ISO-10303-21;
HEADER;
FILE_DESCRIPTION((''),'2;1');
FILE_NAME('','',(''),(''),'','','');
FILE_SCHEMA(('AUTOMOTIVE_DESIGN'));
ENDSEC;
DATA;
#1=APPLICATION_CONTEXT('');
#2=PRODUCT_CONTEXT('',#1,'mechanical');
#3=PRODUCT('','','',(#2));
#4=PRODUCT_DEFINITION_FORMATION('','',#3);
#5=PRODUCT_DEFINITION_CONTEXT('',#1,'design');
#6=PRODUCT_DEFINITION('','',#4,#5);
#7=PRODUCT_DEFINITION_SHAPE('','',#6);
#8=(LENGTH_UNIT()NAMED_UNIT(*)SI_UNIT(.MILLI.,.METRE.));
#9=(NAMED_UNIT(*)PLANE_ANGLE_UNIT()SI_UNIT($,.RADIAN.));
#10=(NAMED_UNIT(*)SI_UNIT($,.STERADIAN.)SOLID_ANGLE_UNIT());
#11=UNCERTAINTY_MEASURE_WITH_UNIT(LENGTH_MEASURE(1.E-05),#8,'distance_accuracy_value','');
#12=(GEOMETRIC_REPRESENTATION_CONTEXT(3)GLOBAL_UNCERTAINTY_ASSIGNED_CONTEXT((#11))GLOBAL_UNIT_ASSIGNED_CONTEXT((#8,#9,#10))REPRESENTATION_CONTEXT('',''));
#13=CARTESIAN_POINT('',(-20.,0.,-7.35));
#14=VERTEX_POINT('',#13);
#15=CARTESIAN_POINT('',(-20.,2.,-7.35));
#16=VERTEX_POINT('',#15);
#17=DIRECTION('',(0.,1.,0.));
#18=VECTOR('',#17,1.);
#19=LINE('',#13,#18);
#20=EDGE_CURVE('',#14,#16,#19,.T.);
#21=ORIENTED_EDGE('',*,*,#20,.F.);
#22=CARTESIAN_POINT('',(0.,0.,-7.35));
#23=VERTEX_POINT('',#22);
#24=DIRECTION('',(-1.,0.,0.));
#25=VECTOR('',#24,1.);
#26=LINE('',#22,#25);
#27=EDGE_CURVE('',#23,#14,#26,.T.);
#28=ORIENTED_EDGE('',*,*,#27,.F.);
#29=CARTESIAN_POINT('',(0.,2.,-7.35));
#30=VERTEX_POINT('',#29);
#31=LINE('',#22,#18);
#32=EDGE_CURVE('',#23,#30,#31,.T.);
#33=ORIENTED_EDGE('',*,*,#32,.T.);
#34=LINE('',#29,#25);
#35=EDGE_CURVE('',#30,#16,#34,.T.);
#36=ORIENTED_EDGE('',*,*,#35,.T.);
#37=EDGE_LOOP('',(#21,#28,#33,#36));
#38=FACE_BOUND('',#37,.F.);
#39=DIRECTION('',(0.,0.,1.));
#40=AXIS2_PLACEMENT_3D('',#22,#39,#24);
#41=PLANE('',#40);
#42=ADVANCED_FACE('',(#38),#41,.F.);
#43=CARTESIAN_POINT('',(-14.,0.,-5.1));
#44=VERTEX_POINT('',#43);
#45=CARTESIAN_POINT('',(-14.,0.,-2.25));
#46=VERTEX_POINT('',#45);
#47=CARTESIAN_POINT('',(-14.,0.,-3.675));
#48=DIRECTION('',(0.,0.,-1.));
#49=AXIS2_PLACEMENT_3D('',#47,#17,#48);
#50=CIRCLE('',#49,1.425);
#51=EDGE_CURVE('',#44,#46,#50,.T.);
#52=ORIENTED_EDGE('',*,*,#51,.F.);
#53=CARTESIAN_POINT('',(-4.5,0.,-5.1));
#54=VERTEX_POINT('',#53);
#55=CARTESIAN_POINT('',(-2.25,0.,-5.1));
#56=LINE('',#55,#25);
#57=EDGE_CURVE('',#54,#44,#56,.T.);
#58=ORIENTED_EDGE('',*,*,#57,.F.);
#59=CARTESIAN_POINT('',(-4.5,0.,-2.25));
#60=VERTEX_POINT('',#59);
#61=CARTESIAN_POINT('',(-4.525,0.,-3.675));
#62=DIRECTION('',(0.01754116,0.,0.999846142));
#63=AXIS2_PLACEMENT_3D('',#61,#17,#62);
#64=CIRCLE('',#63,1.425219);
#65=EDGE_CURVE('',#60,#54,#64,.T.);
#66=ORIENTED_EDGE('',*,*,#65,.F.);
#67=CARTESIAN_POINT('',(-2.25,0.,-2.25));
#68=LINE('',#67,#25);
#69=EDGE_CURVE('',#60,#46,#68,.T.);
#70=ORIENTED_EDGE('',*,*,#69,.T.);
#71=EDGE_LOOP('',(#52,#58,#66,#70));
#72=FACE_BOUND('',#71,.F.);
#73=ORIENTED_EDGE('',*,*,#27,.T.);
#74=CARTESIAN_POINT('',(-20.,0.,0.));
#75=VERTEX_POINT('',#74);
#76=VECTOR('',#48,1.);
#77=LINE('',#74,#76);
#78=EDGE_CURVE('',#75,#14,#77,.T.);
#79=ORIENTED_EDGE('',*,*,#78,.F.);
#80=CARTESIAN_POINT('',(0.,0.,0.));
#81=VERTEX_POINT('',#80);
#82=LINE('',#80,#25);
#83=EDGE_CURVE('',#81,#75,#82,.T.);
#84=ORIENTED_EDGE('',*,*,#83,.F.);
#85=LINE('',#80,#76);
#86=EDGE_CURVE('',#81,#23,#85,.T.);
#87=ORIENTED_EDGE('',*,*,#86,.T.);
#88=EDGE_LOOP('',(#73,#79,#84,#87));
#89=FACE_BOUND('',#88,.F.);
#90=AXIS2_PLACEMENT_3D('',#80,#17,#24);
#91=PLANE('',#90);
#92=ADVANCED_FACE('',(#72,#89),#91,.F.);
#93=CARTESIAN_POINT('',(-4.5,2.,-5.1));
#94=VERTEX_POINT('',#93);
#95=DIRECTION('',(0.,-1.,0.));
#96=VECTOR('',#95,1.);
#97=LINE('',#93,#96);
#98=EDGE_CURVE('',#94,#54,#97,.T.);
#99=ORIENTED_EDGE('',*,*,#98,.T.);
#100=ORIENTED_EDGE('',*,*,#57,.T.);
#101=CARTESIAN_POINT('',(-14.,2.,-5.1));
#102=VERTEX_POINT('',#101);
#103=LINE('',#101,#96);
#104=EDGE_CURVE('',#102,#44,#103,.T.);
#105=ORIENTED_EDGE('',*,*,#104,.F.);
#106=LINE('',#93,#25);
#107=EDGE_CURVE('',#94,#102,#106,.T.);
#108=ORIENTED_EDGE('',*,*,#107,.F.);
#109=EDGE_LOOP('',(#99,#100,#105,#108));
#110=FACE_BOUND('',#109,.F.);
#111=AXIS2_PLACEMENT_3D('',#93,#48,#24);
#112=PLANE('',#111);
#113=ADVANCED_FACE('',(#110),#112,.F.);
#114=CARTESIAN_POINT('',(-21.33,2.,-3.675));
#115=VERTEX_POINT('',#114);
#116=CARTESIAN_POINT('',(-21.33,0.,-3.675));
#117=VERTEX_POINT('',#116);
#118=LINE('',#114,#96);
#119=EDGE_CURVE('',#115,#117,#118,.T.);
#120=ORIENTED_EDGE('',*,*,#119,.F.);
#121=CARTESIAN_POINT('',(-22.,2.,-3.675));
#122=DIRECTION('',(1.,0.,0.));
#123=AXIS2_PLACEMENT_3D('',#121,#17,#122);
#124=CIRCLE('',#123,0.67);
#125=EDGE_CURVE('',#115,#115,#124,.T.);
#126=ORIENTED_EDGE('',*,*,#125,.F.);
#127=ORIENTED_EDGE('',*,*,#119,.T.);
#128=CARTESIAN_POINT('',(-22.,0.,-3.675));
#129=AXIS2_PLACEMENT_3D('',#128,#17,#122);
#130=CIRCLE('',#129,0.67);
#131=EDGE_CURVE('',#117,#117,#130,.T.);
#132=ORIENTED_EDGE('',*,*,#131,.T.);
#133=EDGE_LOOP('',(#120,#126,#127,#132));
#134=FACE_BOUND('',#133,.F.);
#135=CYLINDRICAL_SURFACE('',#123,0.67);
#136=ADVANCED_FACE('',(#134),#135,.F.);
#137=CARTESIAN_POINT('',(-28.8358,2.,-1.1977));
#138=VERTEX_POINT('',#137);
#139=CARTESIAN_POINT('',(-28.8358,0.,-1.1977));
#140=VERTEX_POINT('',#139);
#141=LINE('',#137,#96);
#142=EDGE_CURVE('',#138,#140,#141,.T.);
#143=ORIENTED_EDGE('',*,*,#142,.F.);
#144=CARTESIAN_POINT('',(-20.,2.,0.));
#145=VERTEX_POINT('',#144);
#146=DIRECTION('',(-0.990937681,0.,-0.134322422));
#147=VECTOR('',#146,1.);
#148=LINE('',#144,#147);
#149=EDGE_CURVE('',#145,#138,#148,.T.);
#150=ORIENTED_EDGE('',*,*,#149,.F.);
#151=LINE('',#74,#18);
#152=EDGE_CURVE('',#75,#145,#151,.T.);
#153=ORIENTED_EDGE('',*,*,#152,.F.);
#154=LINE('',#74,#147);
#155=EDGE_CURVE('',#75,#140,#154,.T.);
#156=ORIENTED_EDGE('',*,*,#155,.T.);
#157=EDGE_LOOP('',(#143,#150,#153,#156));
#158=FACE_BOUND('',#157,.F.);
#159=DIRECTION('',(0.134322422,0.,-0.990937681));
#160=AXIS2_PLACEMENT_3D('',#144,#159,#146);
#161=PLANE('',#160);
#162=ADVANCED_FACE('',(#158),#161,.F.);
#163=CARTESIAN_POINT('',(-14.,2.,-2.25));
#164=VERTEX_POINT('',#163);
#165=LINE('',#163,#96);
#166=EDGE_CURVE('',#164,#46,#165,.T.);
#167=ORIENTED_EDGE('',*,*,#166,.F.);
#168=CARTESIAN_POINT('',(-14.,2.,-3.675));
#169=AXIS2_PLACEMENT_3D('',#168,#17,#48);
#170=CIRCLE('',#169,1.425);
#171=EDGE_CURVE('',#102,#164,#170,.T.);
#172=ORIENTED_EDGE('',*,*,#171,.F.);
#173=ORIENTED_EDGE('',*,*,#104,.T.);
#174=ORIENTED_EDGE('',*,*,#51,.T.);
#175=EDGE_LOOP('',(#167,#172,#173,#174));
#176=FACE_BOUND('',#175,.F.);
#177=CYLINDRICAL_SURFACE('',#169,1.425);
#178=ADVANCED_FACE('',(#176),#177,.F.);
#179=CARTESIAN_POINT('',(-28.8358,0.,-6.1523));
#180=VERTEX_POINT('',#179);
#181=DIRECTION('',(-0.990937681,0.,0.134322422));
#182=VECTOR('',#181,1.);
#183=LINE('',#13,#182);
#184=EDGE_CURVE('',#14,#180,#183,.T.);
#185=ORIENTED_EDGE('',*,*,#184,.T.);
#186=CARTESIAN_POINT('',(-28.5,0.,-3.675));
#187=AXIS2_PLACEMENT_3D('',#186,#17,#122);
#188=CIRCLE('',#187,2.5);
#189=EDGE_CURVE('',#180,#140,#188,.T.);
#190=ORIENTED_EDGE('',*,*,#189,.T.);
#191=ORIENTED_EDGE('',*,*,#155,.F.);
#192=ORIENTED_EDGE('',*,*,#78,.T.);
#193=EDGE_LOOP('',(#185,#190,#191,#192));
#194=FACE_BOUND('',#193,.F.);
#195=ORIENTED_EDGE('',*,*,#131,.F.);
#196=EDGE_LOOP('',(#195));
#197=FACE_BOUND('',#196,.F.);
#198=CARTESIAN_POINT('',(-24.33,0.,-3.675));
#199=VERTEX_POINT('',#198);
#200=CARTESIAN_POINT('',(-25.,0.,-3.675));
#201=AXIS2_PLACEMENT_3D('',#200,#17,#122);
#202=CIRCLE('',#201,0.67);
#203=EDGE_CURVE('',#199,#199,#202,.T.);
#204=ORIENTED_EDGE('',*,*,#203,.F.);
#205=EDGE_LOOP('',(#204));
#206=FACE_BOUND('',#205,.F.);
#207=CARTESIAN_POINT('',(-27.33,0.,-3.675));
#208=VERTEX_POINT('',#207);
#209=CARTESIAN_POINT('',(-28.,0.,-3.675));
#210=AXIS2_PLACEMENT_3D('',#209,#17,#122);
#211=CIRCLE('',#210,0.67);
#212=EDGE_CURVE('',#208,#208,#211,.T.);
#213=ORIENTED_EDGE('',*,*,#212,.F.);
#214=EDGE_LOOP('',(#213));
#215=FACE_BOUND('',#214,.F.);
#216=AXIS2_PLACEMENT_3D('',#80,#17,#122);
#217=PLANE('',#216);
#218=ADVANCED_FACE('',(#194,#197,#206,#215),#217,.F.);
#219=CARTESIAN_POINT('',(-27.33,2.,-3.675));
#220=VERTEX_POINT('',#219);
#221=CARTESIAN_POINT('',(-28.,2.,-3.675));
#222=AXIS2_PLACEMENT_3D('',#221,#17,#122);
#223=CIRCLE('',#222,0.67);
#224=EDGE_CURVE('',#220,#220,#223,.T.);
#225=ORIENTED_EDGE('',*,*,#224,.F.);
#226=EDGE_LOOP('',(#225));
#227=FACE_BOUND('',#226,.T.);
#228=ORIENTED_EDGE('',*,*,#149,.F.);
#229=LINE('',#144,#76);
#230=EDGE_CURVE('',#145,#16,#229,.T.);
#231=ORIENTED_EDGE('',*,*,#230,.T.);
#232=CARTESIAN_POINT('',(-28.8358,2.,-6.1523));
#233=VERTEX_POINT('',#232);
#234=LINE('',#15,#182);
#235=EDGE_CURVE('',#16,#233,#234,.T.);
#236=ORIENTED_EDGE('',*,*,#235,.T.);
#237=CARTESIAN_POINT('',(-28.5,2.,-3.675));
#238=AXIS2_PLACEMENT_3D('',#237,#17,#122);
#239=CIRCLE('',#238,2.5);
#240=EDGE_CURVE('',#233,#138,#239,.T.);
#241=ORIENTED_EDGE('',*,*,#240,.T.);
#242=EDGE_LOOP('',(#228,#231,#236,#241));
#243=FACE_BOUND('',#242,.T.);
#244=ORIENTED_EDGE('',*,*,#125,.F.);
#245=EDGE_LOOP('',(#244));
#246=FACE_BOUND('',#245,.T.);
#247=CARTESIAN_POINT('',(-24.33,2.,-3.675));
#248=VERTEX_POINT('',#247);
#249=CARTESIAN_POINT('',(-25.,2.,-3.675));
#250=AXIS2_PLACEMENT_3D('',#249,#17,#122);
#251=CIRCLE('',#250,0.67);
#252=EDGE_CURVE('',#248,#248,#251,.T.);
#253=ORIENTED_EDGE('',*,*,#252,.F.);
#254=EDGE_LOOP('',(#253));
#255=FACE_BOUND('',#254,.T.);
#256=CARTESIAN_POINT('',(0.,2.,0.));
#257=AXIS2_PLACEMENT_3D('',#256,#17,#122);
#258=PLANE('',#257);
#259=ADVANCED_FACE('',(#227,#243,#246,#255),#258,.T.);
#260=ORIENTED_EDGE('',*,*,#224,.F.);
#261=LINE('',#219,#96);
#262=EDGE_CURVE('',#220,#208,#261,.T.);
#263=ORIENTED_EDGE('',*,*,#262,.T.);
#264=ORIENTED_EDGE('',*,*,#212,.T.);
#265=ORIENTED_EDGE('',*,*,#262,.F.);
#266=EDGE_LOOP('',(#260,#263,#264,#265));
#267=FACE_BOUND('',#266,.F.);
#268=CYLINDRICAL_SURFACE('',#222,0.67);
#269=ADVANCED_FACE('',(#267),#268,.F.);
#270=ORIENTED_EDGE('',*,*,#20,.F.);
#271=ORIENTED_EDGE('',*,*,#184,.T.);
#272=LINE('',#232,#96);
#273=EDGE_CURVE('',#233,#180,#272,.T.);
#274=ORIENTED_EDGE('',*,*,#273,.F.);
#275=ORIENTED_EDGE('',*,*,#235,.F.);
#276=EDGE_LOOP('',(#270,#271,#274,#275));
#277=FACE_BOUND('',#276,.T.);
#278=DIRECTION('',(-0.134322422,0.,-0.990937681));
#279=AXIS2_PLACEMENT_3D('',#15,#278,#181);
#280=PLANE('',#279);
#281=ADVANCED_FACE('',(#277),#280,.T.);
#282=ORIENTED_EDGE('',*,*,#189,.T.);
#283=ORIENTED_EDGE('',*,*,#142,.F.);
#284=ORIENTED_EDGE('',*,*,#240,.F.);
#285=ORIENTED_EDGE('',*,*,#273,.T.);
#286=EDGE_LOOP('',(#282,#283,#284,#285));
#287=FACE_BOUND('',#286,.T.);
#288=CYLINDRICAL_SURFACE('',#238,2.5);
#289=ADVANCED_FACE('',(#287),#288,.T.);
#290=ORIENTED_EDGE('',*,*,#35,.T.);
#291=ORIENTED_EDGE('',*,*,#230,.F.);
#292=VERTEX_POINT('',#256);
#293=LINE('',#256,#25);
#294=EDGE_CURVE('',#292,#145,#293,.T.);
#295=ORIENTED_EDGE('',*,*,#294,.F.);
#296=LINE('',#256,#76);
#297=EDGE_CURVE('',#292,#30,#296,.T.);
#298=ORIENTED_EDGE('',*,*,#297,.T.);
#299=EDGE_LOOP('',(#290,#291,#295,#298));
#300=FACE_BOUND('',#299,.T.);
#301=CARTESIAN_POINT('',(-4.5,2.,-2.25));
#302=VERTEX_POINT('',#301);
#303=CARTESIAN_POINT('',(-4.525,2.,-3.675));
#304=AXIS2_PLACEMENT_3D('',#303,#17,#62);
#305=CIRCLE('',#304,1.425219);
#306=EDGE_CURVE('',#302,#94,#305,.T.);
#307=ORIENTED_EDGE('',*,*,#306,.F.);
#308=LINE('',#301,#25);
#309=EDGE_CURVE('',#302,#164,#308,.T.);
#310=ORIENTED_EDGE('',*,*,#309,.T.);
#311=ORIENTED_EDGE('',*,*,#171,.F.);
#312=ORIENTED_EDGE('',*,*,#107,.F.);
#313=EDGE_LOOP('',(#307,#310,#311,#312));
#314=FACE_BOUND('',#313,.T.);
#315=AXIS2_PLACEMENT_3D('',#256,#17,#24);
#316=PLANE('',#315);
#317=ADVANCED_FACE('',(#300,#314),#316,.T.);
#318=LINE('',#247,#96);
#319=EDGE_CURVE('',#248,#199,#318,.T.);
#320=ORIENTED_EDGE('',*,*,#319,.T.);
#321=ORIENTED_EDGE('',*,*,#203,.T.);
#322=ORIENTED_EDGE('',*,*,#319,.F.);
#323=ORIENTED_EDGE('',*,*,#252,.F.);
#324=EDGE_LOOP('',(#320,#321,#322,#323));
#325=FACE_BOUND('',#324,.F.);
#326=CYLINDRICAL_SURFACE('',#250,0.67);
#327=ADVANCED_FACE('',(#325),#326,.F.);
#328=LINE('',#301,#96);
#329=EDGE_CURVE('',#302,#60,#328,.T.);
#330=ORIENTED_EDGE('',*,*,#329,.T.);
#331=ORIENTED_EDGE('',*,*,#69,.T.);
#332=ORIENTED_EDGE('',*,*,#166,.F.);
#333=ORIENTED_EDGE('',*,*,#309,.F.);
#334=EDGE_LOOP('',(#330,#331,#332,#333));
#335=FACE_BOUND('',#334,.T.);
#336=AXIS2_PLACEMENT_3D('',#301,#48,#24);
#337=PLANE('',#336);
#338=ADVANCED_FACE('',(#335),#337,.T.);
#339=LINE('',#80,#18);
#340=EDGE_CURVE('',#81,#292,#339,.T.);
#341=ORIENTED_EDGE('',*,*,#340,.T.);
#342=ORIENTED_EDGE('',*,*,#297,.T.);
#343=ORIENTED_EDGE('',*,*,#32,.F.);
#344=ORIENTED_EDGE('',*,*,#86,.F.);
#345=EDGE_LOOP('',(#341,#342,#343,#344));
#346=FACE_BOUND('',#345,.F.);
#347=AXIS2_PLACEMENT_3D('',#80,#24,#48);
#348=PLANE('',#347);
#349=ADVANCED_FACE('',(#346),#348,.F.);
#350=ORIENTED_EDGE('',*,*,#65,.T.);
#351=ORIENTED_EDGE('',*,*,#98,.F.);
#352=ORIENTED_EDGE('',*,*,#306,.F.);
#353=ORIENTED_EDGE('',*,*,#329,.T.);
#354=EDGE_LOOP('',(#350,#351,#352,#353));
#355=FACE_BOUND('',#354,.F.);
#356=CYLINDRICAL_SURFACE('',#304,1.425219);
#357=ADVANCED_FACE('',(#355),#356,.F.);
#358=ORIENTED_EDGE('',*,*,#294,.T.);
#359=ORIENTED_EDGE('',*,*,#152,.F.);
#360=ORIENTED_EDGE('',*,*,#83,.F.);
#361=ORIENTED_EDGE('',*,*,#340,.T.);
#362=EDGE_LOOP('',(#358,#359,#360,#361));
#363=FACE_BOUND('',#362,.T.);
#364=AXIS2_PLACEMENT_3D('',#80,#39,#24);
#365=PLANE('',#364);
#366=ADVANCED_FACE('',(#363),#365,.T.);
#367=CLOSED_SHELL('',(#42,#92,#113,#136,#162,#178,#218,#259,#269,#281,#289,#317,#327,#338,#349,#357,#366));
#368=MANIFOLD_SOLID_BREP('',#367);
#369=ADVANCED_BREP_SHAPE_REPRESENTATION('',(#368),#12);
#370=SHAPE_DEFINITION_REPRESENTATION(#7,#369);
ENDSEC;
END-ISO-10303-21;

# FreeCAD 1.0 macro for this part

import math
import FreeCAD as App
import Part
import Sketcher
from FreeCAD import Vector

doc = App.newDocument("Part")
body = doc.addObject("PartDesign::Body", "Body")

# Sketch on XZ plane
sketch1 = body.newObject("Sketcher::SketchObject", "Sketch")
sketch1.AttachmentSupport = (doc.getObject("XZ_Plane"), [""])
sketch1.MapMode = "FlatFace"
sketch1.addGeometry(Part.LineSegment(Vector(-20, 0, 0), Vector(0, 0, 0)), False)
sketch1.addGeometry(Part.LineSegment(Vector(0, 0, 0), Vector(0, -7.3, 0)), False)
sketch1.addGeometry(Part.LineSegment(Vector(0, -7.3, 0), Vector(-20, -7.3, 0)), False)
sketch1.addGeometry(Part.LineSegment(Vector(-20, -7.3, 0), Vector(-28, -6.7, 0)), False)
sketch1.addGeometry(Part.ArcOfCircle(Part.Circle(Vector(-28, -3.7, 0), Vector(0, 0, 1), 3), math.radians(90), math.radians(270)), False)
sketch1.addGeometry(Part.LineSegment(Vector(-28, -0.7, 0), Vector(-20, 0, 0)), False)
sketch1.addConstraint(Sketcher.Constraint("Coincident", 0, 2, 1, 1))
sketch1.addConstraint(Sketcher.Constraint("Coincident", 1, 2, 2, 1))
sketch1.addConstraint(Sketcher.Constraint("Coincident", 2, 2, 3, 1))
sketch1.addConstraint(Sketcher.Constraint("Coincident", 3, 2, 4, 2))
sketch1.addConstraint(Sketcher.Constraint("Coincident", 4, 1, 5, 1))
sketch1.addConstraint(Sketcher.Constraint("Coincident", 5, 2, 0, 1))
sketch1.addConstraint(Sketcher.Constraint("Horizontal", 0))
sketch1.addConstraint(Sketcher.Constraint("Vertical", 1))
sketch1.addConstraint(Sketcher.Constraint("Horizontal", 2))
sketch1.addConstraint(Sketcher.Constraint("Coincident", 0, 2, -1, 1))
sketch1.addConstraint(Sketcher.Constraint("Vertical", 4, 3, 3, 2))
sketch1.addConstraint(Sketcher.Constraint("Vertical", 3, 2, 4, 1))
sketch1.addConstraint(Sketcher.Constraint("Vertical", 2, 2, 5, 2))
sketch1.addConstraint(Sketcher.Constraint("Equal", 3, 5))
sketch1.addConstraint(Sketcher.Constraint("DistanceX", 0, 1, 0, 2, 20.0))
sketch1.addConstraint(Sketcher.Constraint("Radius", 4, 3.0))
sketch1.addConstraint(Sketcher.Constraint("DistanceY", 1, 2, 1, 1, 7.35))
sketch1.addConstraint(Sketcher.Constraint("DistanceX", 4, 3, -1, 1, 28.0))
pad1 = body.newObject("PartDesign::Pad", "Pad")
pad1.Profile = sketch1
pad1.Length = 2
pad1.Reversed = True

# Sketch on XZ plane
sketch2 = body.newObject("Sketcher::SketchObject", "Sketch001")
sketch2.AttachmentSupport = (doc.getObject("XZ_Plane"), [""])
sketch2.MapMode = "FlatFace"
sketch2.AttachmentOffset = App.Placement(Vector(0, 0, -2), App.Rotation())
sketch2.addGeometry(Part.LineSegment(Vector(-14, -2.25, 0), Vector(-4.5, -2.25, 0)), False)
sketch2.addGeometry(Part.ArcOfCircle(Part.Circle(Vector(-4.525, -3.675, 0), Vector(0, 0, 1), 1.425219), math.radians(-88.994914), math.radians(88.994914)), False)
sketch2.addGeometry(Part.LineSegment(Vector(-4.5, -5.1, 0), Vector(-14, -5.1, 0)), False)
sketch2.addGeometry(Part.ArcOfCircle(Part.Circle(Vector(-14, -3.675, 0), Vector(0, 0, 1), 1.425), math.radians(90), math.radians(270)), False)
sketch2.addConstraint(Sketcher.Constraint("Coincident", 0, 2, 1, 2))
sketch2.addConstraint(Sketcher.Constraint("Coincident", 1, 1, 2, 1))
sketch2.addConstraint(Sketcher.Constraint("Tangent", 2, 2, 3, 2))
sketch2.addConstraint(Sketcher.Constraint("Tangent", 3, 1, 0, 1))
sketch2.addConstraint(Sketcher.Constraint("Horizontal", 0))
sketch2.addConstraint(Sketcher.Constraint("Horizontal", 2))
sketch2.addConstraint(Sketcher.Constraint("Horizontal", 1, 3, 3, 3))
sketch2.addConstraint(Sketcher.Constraint("DistanceX", 0, 1, 0, 2, 9.5))
sketch2.addConstraint(Sketcher.Constraint("DistanceX", 3, 3, -1, 1, 14.0))
sketch2.addConstraint(Sketcher.Constraint("Radius", 3, 1.425))
sketch2.addConstraint(Sketcher.Constraint("DistanceY", 1, 1, -1, 1, 5.1))
sketch2.addConstraint(Sketcher.Constraint("Radius", 1, 1.4252))
pocket1 = body.newObject("PartDesign::Pocket", "Pocket")
pocket1.Profile = sketch2
pocket1.Length = 10
pocket1.Reversed = True

# Sketch on XZ plane
sketch3 = body.newObject("Sketcher::SketchObject", "Sketch002")
sketch3.AttachmentSupport = (doc.getObject("XZ_Plane"), [""])
sketch3.MapMode = "FlatFace"
sketch3.AttachmentOffset = App.Placement(Vector(0, 0, -2), App.Rotation())
sketch3.addGeometry(Part.LineSegment(Vector(-28, -0.7, 0), Vector(-28, -6.7, 0)), False)
sketch3.addGeometry(Part.ArcOfCircle(Part.Circle(Vector(-28, -3.7, 0), Vector(0, 0, 1), 3), math.radians(90), math.radians(270)), False)
sketch3.addConstraint(Sketcher.Constraint("Coincident", 0, 1, 1, 1))
sketch3.addConstraint(Sketcher.Constraint("Coincident", 1, 2, 0, 2))
sketch3.addConstraint(Sketcher.Constraint("Vertical", 0))
sketch3.addConstraint(Sketcher.Constraint("Vertical", 1, 3, 0, 1))
sketch3.addConstraint(Sketcher.Constraint("DistanceX", 1, 3, -1, 1, 28.0))
sketch3.addConstraint(Sketcher.Constraint("Radius", 1, 3.0))
sketch3.addConstraint(Sketcher.Constraint("DistanceY", 1, 3, -1, 1, 3.675))
pocket2 = body.newObject("PartDesign::Pocket", "Pocket001")
pocket2.Profile = sketch3
pocket2.Length = 10
pocket2.Reversed = True

# Sketch on XZ plane
sketch4 = body.newObject("Sketcher::SketchObject", "Sketch003")
sketch4.AttachmentSupport = (doc.getObject("XZ_Plane"), [""])
sketch4.MapMode = "FlatFace"
sketch4.AttachmentOffset = App.Placement(Vector(0, 0, -2), App.Rotation())
sketch4.addGeometry(Part.LineSegment(Vector(-28, -7, 0), Vector(-28, -1, 0)), False)
sketch4.addGeometry(Part.LineSegment(Vector(-28, -1, 0), Vector(-20, 0, 0)), False)
sketch4.addGeometry(Part.LineSegment(Vector(-20, 0, 0), Vector(-20, -7, 0)), False)
sketch4.addGeometry(Part.LineSegment(Vector(-20, -7, 0), Vector(-28, -7, 0)), False)
sketch4.addConstraint(Sketcher.Constraint("Coincident", 0, 2, 1, 1))
sketch4.addConstraint(Sketcher.Constraint("Coincident", 1, 2, 2, 1))
sketch4.addConstraint(Sketcher.Constraint("Coincident", 2, 2, 3, 1))
sketch4.addConstraint(Sketcher.Constraint("Coincident", 3, 2, 0, 1))
sketch4.addConstraint(Sketcher.Constraint("Vertical", 0))
sketch4.addConstraint(Sketcher.Constraint("Vertical", 2))
sketch4.addConstraint(Sketcher.Constraint("PointOnObject", 1, 2, -1))
sketch4.addConstraint(Sketcher.Constraint("Equal", 1, 3))
sketch4.addConstraint(Sketcher.Constraint("DistanceY", 0, 1, 0, 2, 6.0))
sketch4.addConstraint(Sketcher.Constraint("DistanceX", 0, 2, -1, 1, 28.0))
sketch4.addConstraint(Sketcher.Constraint("DistanceX", 1, 2, -1, 1, 20.0))
sketch4.addConstraint(Sketcher.Constraint("DistanceY", 2, 2, 2, 1, 7.35))
pocket3 = body.newObject("PartDesign::Pocket", "Pocket002")
pocket3.Profile = sketch4
pocket3.Length = 10
pocket3.Reversed = True

# Sketch on XZ plane
sketch5 = body.newObject("Sketcher::SketchObject", "Sketch004")
sketch5.AttachmentSupport = (doc.getObject("XZ_Plane"), [""])
sketch5.MapMode = "FlatFace"
sketch5.AttachmentOffset = App.Placement(Vector(0, 0, -2), App.Rotation())
sketch5.addGeometry(Part.ArcOfCircle(Part.Circle(Vector(-28.5, -3.7, 0), Vector(0, 0, 1), 2.5), math.radians(98), math.radians(262)), False)
sketch5.addGeometry(Part.LineSegment(Vector(-28.8, -1.2, 0), Vector(-20, 0, 0)), False)
sketch5.addGeometry(Part.LineSegment(Vector(-20, 0, 0), Vector(-20, -7.3, 0)), False)
sketch5.addGeometry(Part.LineSegment(Vector(-20, -7.3, 0), Vector(-28.8, -6.2, 0)), False)
sketch5.addConstraint(Sketcher.Constraint("Tangent", 0, 1, 1, 1))
sketch5.addConstraint(Sketcher.Constraint("Coincident", 1, 2, 2, 1))
sketch5.addConstraint(Sketcher.Constraint("Coincident", 2, 2, 3, 1))
sketch5.addConstraint(Sketcher.Constraint("Tangent", 3, 2, 0, 2))
sketch5.addConstraint(Sketcher.Constraint("Vertical", 2))
sketch5.addConstraint(Sketcher.Constraint("PointOnObject", 1, 2, -1))
sketch5.addConstraint(Sketcher.Constraint("Vertical", 0, 1, 3, 2))
sketch5.addConstraint(Sketcher.Constraint("Radius", 0, 2.5))
sketch5.addConstraint(Sketcher.Constraint("DistanceX", 1, 2, -1, 1, 20.0))
sketch5.addConstraint(Sketcher.Constraint("DistanceY", 2, 2, 2, 1, 7.35))
sketch5.addConstraint(Sketcher.Constraint("DistanceX", 0, 3, -1, 1, 28.5))
pad2 = body.newObject("PartDesign::Pad", "Pad001")
pad2.Profile = sketch5
pad2.Length = 2

# Sketch on XZ plane
sketch6 = body.newObject("Sketcher::SketchObject", "Sketch005")
sketch6.AttachmentSupport = (doc.getObject("XZ_Plane"), [""])
sketch6.MapMode = "FlatFace"
sketch6.AttachmentOffset = App.Placement(Vector(0, 0, -2), App.Rotation())
sketch6.addGeometry(Part.Circle(Vector(-22, -3.7, 0), Vector(0, 0, 1), 0.7), False)
sketch6.addGeometry(Part.Circle(Vector(-25, -3.7, 0), Vector(0, 0, 1), 0.7), False)
sketch6.addGeometry(Part.Circle(Vector(-28, -3.7, 0), Vector(0, 0, 1), 0.7), False)
sketch6.addConstraint(Sketcher.Constraint("Equal", 0, 1))
sketch6.addConstraint(Sketcher.Constraint("Equal", 1, 2))
sketch6.addConstraint(Sketcher.Constraint("Horizontal", 0, 3, 1, 3))
sketch6.addConstraint(Sketcher.Constraint("Horizontal", 1, 3, 2, 3))
sketch6.addConstraint(Sketcher.Constraint("Diameter", 0, 1.34))
sketch6.addConstraint(Sketcher.Constraint("DistanceX", 0, 3, -1, 1, 22.0))
sketch6.addConstraint(Sketcher.Constraint("DistanceX", 1, 3, -1, 1, 25.0))
sketch6.addConstraint(Sketcher.Constraint("DistanceX", 2, 3, -1, 1, 28.0))
sketch6.addConstraint(Sketcher.Constraint("DistanceY", 0, 3, -1, 1, 3.675))
pocket4 = body.newObject("PartDesign::Pocket", "Pocket003")
pocket4.Profile = sketch6
pocket4.Length = 2
pocket4.Reversed = True

doc.recompute()
